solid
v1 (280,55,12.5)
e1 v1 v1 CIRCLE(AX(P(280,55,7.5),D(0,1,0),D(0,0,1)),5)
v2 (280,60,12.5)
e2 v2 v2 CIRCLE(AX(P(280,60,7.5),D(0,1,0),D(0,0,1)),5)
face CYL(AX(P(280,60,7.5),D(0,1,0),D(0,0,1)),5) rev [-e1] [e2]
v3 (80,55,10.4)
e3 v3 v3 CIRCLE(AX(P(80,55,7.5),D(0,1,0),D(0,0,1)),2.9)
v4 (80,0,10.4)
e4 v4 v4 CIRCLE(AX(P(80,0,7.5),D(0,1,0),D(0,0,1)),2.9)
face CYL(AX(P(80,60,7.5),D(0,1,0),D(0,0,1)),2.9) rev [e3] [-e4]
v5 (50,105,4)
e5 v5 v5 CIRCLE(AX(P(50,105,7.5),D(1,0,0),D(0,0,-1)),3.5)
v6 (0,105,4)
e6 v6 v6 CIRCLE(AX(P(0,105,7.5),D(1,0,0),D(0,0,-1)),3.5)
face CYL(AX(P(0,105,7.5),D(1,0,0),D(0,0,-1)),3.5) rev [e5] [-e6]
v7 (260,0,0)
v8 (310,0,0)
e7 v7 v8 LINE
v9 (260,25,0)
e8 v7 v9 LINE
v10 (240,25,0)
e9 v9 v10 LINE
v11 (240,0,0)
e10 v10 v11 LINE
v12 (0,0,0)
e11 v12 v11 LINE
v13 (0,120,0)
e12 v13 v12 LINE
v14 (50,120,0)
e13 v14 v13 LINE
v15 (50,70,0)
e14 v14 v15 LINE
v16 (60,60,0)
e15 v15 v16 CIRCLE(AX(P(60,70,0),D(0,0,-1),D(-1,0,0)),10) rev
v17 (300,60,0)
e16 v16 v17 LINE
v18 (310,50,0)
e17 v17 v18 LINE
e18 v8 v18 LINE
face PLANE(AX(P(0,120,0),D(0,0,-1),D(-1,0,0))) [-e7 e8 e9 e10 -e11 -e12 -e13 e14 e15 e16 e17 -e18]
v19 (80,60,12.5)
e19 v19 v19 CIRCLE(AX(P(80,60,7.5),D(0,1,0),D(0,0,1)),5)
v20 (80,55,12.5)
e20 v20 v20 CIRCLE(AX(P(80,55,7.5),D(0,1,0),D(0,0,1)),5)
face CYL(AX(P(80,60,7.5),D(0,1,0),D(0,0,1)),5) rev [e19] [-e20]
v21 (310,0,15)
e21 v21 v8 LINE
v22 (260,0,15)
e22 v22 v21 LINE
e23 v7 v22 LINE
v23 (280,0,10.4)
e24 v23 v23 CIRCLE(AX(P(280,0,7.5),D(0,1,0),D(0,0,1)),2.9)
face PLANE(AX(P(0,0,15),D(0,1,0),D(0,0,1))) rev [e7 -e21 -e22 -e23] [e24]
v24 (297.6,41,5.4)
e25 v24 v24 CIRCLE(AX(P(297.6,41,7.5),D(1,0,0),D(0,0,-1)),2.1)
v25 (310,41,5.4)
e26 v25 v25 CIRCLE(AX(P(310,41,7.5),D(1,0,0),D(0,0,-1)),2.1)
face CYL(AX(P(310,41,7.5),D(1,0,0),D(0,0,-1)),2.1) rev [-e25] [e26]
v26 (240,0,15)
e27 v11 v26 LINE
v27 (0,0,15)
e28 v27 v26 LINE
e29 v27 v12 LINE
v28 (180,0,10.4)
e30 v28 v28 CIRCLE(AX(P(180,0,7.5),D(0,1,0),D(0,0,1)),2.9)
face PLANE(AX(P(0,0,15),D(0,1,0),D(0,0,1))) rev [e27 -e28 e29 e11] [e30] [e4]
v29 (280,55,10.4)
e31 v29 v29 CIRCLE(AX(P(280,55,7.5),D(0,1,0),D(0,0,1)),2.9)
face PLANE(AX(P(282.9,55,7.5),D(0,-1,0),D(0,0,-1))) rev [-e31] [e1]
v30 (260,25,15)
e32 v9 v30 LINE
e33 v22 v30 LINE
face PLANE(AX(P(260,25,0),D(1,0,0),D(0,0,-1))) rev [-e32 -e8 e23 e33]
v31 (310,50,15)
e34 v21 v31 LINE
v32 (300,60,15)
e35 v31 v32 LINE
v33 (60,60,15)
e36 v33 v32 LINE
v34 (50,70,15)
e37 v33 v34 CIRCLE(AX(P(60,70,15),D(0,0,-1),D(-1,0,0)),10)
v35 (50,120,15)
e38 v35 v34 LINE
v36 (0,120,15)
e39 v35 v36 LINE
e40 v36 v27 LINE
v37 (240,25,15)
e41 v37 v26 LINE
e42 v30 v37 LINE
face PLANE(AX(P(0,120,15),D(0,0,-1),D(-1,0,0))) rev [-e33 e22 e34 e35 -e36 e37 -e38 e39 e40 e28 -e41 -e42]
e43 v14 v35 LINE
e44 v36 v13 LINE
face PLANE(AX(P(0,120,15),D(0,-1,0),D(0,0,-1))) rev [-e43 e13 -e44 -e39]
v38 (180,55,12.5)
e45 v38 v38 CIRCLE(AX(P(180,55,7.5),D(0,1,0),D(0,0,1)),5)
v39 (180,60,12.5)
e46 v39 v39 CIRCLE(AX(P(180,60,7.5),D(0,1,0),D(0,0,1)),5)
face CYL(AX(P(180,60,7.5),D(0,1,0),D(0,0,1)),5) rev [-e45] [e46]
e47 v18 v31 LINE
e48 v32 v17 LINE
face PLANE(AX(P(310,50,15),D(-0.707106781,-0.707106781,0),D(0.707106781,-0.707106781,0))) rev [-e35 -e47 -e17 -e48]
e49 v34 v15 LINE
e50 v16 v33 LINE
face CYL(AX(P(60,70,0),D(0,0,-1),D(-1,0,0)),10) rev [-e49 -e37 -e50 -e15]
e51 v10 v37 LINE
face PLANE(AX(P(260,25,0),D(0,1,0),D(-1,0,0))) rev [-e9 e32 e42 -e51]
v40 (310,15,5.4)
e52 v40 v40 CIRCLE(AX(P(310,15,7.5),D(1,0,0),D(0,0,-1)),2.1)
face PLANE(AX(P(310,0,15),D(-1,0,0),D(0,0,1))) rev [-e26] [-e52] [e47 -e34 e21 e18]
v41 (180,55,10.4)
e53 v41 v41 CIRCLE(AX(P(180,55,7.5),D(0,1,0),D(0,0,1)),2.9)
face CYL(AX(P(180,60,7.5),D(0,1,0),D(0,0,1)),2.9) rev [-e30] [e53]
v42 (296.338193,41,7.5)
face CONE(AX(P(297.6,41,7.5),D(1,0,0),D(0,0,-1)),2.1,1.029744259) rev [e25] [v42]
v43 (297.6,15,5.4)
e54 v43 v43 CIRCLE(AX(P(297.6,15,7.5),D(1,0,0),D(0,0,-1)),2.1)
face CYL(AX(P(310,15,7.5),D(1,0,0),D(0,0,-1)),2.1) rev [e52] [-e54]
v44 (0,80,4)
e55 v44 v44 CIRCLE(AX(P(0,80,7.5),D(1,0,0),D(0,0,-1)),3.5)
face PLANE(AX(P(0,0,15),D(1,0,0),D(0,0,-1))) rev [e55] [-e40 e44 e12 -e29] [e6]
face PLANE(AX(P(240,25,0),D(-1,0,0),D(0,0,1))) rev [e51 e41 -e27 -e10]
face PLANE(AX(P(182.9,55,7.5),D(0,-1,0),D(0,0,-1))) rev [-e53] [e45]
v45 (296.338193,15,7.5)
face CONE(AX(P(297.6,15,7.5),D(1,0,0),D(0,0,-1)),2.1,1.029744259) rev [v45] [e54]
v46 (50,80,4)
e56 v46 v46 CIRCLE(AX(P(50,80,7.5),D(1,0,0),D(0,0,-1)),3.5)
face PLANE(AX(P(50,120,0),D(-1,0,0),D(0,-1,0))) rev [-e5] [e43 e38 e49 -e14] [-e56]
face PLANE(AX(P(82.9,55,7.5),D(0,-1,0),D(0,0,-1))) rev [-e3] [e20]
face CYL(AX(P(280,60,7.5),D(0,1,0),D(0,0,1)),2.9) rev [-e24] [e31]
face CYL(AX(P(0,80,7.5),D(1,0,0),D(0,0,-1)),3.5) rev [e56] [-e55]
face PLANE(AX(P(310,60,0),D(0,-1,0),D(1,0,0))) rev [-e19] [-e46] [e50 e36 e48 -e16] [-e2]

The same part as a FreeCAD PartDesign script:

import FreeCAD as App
import Part
import Sketcher


def edges_at(feature, points):
    """Names of the edges that pass closest to the given points."""
    edges = feature.Shape.Edges
    near = lambda p: min(range(len(edges)), key=lambda i: edges[i].distToShape(Part.Vertex(*p))[0])
    return sorted({f"Edge{near(p) + 1}" for p in points})

doc = App.newDocument("Part")
body = doc.addObject("PartDesign::Body", "Body")

sketch1 = doc.addObject("Sketcher::SketchObject", "Sketch")
body.addObject(sketch1)
sketch1.AttachmentSupport = (doc.XY_Plane, [""])
sketch1.MapMode = "FlatFace"
sketch1.addGeometry([
    Part.LineSegment(App.Vector(0, 120, 0), App.Vector(0, 0, 0)),
    Part.LineSegment(App.Vector(0, 0, 0), App.Vector(310, 0, 0)),
    Part.LineSegment(App.Vector(310, 0, 0), App.Vector(310, 120, 0)),
    Part.LineSegment(App.Vector(310, 120, 0), App.Vector(0, 120, 0)),
], False)
sketch1.addConstraint([
    Sketcher.Constraint("Coincident", 0, 2, 1, 1),
    Sketcher.Constraint("Coincident", 1, 2, 2, 1),
    Sketcher.Constraint("Coincident", 2, 2, 3, 1),
    Sketcher.Constraint("Coincident", 3, 2, 0, 1),
    Sketcher.Constraint("Vertical", 0),
    Sketcher.Constraint("Horizontal", 1),
    Sketcher.Constraint("Vertical", 2),
    Sketcher.Constraint("Horizontal", 3),
    Sketcher.Constraint("Coincident", 0, 2, -1, 1),
    Sketcher.Constraint("DistanceX", 1, 1, 1, 2, 310.0),
    Sketcher.Constraint("DistanceY", 0, 2, 0, 1, 120.0),
])
pad1 = doc.addObject("PartDesign::Pad", "Pad")
body.addObject(pad1)
pad1.Profile = sketch1
pad1.Length = 15

sketch2 = doc.addObject("Sketcher::SketchObject", "Sketch001")
body.addObject(sketch2)
sketch2.AttachmentSupport = (doc.XY_Plane, [""])
sketch2.MapMode = "FlatFace"
sketch2.AttachmentOffset = App.Placement(App.Vector(0, 0, 15), App.Rotation())
sketch2.addGeometry([
    Part.LineSegment(App.Vector(50, 120, 0), App.Vector(50, 60, 0)),
    Part.LineSegment(App.Vector(50, 60, 0), App.Vector(310, 60, 0)),
    Part.LineSegment(App.Vector(310, 60, 0), App.Vector(310, 120, 0)),
    Part.LineSegment(App.Vector(310, 120, 0), App.Vector(50, 120, 0)),
], False)
sketch2.addConstraint([
    Sketcher.Constraint("Coincident", 0, 2, 1, 1),
    Sketcher.Constraint("Coincident", 1, 2, 2, 1),
    Sketcher.Constraint("Coincident", 2, 2, 3, 1),
    Sketcher.Constraint("Coincident", 3, 2, 0, 1),
    Sketcher.Constraint("Vertical", 0),
    Sketcher.Constraint("Horizontal", 1),
    Sketcher.Constraint("Vertical", 2),
    Sketcher.Constraint("Horizontal", 3),
    Sketcher.Constraint("DistanceX", 1, 1, 1, 2, 260.0),
    Sketcher.Constraint("DistanceY", 0, 2, 0, 1, 60.0),
    Sketcher.Constraint("DistanceX", -1, 1, 0, 2, 50.0),
    Sketcher.Constraint("DistanceY", -1, 1, 0, 2, 60.0),
])
pocket1 = doc.addObject("PartDesign::Pocket", "Pocket")
body.addObject(pocket1)
pocket1.Profile = sketch2
pocket1.Type = "ThroughAll"

sketch3 = doc.addObject("Sketcher::SketchObject", "Sketch002")
body.addObject(sketch3)
sketch3.AttachmentSupport = (doc.XZ_Plane, [""])
sketch3.MapMode = "FlatFace"
sketch3.AttachmentOffset = App.Placement(App.Vector(0, 0, -60), App.Rotation())
sketch3.addGeometry([
    Part.Circle(App.Vector(80, 7.5, 0), App.Vector(0, 0, 1), 2.9),
    Part.Circle(App.Vector(280, 7.5, 0), App.Vector(0, 0, 1), 2.9),
    Part.Circle(App.Vector(180, 7.5, 0), App.Vector(0, 0, 1), 2.9),
], False)
sketch3.addConstraint([
    Sketcher.Constraint("Equal", 0, 1),
    Sketcher.Constraint("Equal", 1, 2),
    Sketcher.Constraint("Horizontal", 0, 3, 1, 3),
    Sketcher.Constraint("Horizontal", 1, 3, 2, 3),
    Sketcher.Constraint("Diameter", 0, 5.8),
    Sketcher.Constraint("DistanceX", -1, 1, 0, 3, 80.0),
    Sketcher.Constraint("DistanceX", -1, 1, 1, 3, 280.0),
    Sketcher.Constraint("DistanceX", -1, 1, 2, 3, 180.0),
    Sketcher.Constraint("DistanceY", -1, 1, 0, 3, 7.5),
])
doc.recompute()
hole = doc.addObject("PartDesign::Hole", "Hole")
body.addObject(hole)
hole.Profile = sketch3
hole.ThreadType = "None"
hole.Diameter = 5.8
hole.DepthType = "ThroughAll"
hole.HoleCutType = "Counterbore"
hole.HoleCutDiameter = 10
hole.HoleCutDepth = 5
hole.Reversed = True

sketch4 = doc.addObject("Sketcher::SketchObject", "Sketch003")
body.addObject(sketch4)
sketch4.AttachmentSupport = (doc.YZ_Plane, [""])
sketch4.MapMode = "FlatFace"
sketch4.AttachmentOffset = App.Placement(App.Vector(0, 0, 50), App.Rotation())
sketch4.addGeometry([
    Part.Circle(App.Vector(80, 7.5, 0), App.Vector(0, 0, 1), 3.5),
    Part.Circle(App.Vector(105, 7.5, 0), App.Vector(0, 0, 1), 3.5),
], False)
sketch4.addConstraint([
    Sketcher.Constraint("Equal", 0, 1),
    Sketcher.Constraint("Horizontal", 0, 3, 1, 3),
    Sketcher.Constraint("Diameter", 0, 7.0),
    Sketcher.Constraint("DistanceX", -1, 1, 0, 3, 80.0),
    Sketcher.Constraint("DistanceX", -1, 1, 1, 3, 105.0),
    Sketcher.Constraint("DistanceY", -1, 1, 0, 3, 7.5),
])
pocket2 = doc.addObject("PartDesign::Pocket", "Pocket001")
body.addObject(pocket2)
pocket2.Profile = sketch4
pocket2.Type = "ThroughAll"
doc.recompute()

chamfer = doc.addObject("PartDesign::Chamfer", "Chamfer")
body.addObject(chamfer)
chamfer.Base = (pocket2, edges_at(pocket2, [(310, 60, 7.5)]))
chamfer.Size = 10
doc.recompute()

fillet = doc.addObject("PartDesign::Fillet", "Fillet")
body.addObject(fillet)
fillet.Base = (chamfer, edges_at(chamfer, [(50, 60, 7.5)]))
fillet.Radius = 10

sketch5 = doc.addObject("Sketcher::SketchObject", "Sketch004")
body.addObject(sketch5)
sketch5.AttachmentSupport = (doc.YZ_Plane, [""])
sketch5.MapMode = "FlatFace"
sketch5.AttachmentOffset = App.Placement(App.Vector(0, 0, 310), App.Rotation())
sketch5.addGeometry([
    Part.Circle(App.Vector(41, 7.5, 0), App.Vector(0, 0, 1), 2.1),
    Part.Circle(App.Vector(15, 7.5, 0), App.Vector(0, 0, 1), 2.1),
], False)
sketch5.addConstraint([
    Sketcher.Constraint("Equal", 0, 1),
    Sketcher.Constraint("Horizontal", 0, 3, 1, 3),
    Sketcher.Constraint("Diameter", 0, 4.2),
    Sketcher.Constraint("DistanceX", -1, 1, 0, 3, 41.0),
    Sketcher.Constraint("DistanceX", -1, 1, 1, 3, 15.0),
    Sketcher.Constraint("DistanceY", -1, 1, 0, 3, 7.5),
])
doc.recompute()
hole2 = doc.addObject("PartDesign::Hole", "Hole001")
body.addObject(hole2)
hole2.Profile = sketch5
hole2.ThreadType = "None"
hole2.Diameter = 4.2
hole2.DepthType = "Dimension"
hole2.Depth = 12.4
hole2.DrillPoint = "Angled"
hole2.DrillPointAngle = 118

sketch6 = doc.addObject("Sketcher::SketchObject", "Sketch005")
body.addObject(sketch6)
sketch6.AttachmentSupport = (doc.XY_Plane, [""])
sketch6.MapMode = "FlatFace"
sketch6.AttachmentOffset = App.Placement(App.Vector(0, 0, 15), App.Rotation())
sketch6.addGeometry([
    Part.LineSegment(App.Vector(240, 25, 0), App.Vector(240, 0, 0)),
    Part.LineSegment(App.Vector(240, 0, 0), App.Vector(260, 0, 0)),
    Part.LineSegment(App.Vector(260, 0, 0), App.Vector(260, 25, 0)),
    Part.LineSegment(App.Vector(260, 25, 0), App.Vector(240, 25, 0)),
], False)
sketch6.addConstraint([
    Sketcher.Constraint("Coincident", 0, 2, 1, 1),
    Sketcher.Constraint("Coincident", 1, 2, 2, 1),
    Sketcher.Constraint("Coincident", 2, 2, 3, 1),
    Sketcher.Constraint("Coincident", 3, 2, 0, 1),
    Sketcher.Constraint("Vertical", 0),
    Sketcher.Constraint("Horizontal", 1),
    Sketcher.Constraint("Vertical", 2),
    Sketcher.Constraint("Horizontal", 3),
    Sketcher.Constraint("PointOnObject", 0, 2, -1),
    Sketcher.Constraint("DistanceX", 1, 1, 1, 2, 20.0),
    Sketcher.Constraint("DistanceY", 0, 2, 0, 1, 25.0),
    Sketcher.Constraint("DistanceX", -1, 1, 0, 2, 240.0),
])
pocket3 = doc.addObject("PartDesign::Pocket", "Pocket002")
body.addObject(pocket3)
pocket3.Profile = sketch6
pocket3.Type = "ThroughAll"

doc.recompute()
